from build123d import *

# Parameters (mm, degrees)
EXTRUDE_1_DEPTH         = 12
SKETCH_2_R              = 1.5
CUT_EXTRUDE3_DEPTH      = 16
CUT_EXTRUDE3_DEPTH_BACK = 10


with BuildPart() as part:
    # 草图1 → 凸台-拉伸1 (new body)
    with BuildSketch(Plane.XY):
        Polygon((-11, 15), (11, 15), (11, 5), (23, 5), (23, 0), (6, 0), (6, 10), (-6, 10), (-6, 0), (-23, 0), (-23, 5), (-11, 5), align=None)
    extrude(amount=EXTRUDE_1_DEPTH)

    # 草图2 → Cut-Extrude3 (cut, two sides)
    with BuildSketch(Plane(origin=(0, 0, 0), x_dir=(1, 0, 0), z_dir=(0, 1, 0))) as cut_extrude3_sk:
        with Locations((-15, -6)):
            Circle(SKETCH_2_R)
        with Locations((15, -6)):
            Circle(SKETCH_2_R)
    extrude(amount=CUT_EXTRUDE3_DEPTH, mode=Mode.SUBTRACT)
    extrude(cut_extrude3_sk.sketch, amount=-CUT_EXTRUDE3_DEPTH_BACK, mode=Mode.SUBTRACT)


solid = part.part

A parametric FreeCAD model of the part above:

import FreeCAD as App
import Part
import Sketcher
Q = App.Units.Quantity

doc = App.newDocument("Part")
params = doc.addObject("Spreadsheet::Sheet", "Params")
for row, (alias, value) in enumerate([
    ("sketch1_width", "22 mm"),
    ("sketch1_width2", "12 mm"),
    ("sketch1_height", "10 mm"),
    ("sketch1_height2", "5 mm"),
    ("pad1_length", "12 mm"),
    ("sketch2_diameter", "3 mm"),
], start=1):
    params.set(f"A{row}", alias)
    params.set(f"B{row}", "=" + value)
    params.setAlias(f"B{row}", alias)

body = doc.addObject("PartDesign::Body", "Body")

sketch1 = doc.addObject("Sketcher::SketchObject", "Sketch")
body.addObject(sketch1)
sketch1.AttachmentSupport = (doc.XY_Plane, [""])
sketch1.MapMode = "FlatFace"
sketch1.addGeometry([
    Part.LineSegment(App.Vector(11, 15, 0), App.Vector(-11, 15, 0)),
    Part.LineSegment(App.Vector(-11, 15, 0), App.Vector(-11, 5, 0)),
    Part.LineSegment(App.Vector(-11, 5, 0), App.Vector(-23, 5, 0)),
    Part.LineSegment(App.Vector(-23, 5, 0), App.Vector(-23, 0, 0)),
    Part.LineSegment(App.Vector(-23, 0, 0), App.Vector(-6, 0, 0)),
    Part.LineSegment(App.Vector(-6, 0, 0), App.Vector(-6, 10, 0)),
    Part.LineSegment(App.Vector(-6, 10, 0), App.Vector(6, 10, 0)),
    Part.LineSegment(App.Vector(6, 10, 0), App.Vector(6, 0, 0)),
    Part.LineSegment(App.Vector(6, 0, 0), App.Vector(23, 0, 0)),
    Part.LineSegment(App.Vector(23, 0, 0), App.Vector(23, 5, 0)),
    Part.LineSegment(App.Vector(23, 5, 0), App.Vector(11, 5, 0)),
    Part.LineSegment(App.Vector(11, 5, 0), App.Vector(11, 15, 0)),
], False)
sketch1.addConstraint([
    Sketcher.Constraint("Coincident", 0, 2, 1, 1),
    Sketcher.Constraint("Coincident", 1, 2, 2, 1),
    Sketcher.Constraint("Coincident", 2, 2, 3, 1),
    Sketcher.Constraint("Coincident", 3, 2, 4, 1),
    Sketcher.Constraint("Coincident", 4, 2, 5, 1),
    Sketcher.Constraint("Coincident", 5, 2, 6, 1),
    Sketcher.Constraint("Coincident", 6, 2, 7, 1),
    Sketcher.Constraint("Coincident", 7, 2, 8, 1),
    Sketcher.Constraint("Coincident", 8, 2, 9, 1),
    Sketcher.Constraint("Coincident", 9, 2, 10, 1),
    Sketcher.Constraint("Coincident", 10, 2, 11, 1),
    Sketcher.Constraint("Coincident", 11, 2, 0, 1),
    Sketcher.Constraint("Horizontal", 0),
    Sketcher.Constraint("Vertical", 1),
    Sketcher.Constraint("Horizontal", 2),
    Sketcher.Constraint("Vertical", 3),
    Sketcher.Constraint("Horizontal", 4),
    Sketcher.Constraint("Vertical", 5),
    Sketcher.Constraint("Horizontal", 6),
    Sketcher.Constraint("Vertical", 7),
    Sketcher.Constraint("Horizontal", 8),
    Sketcher.Constraint("Vertical", 9),
    Sketcher.Constraint("Horizontal", 10),
    Sketcher.Constraint("Vertical", 11),
    Sketcher.Constraint("Symmetric", 4, 2, 7, 2, -1, 1),
    Sketcher.Constraint("Symmetric", 3, 2, 8, 2, -2),
    Sketcher.Constraint("Symmetric", 1, 2, 10, 2, -2),
    Sketcher.Constraint("Equal", 2, 6),
    Sketcher.Constraint("Equal", 1, 5),
    Sketcher.Constraint("DistanceX", 0, 2, 0, 1, Q("22 mm")),
    Sketcher.Constraint("DistanceX", 2, 2, 2, 1, Q("12 mm")),
    Sketcher.Constraint("DistanceY", 1, 2, 1, 1, Q("10 mm")),
    Sketcher.Constraint("DistanceY", 3, 2, 3, 1, Q("5 mm")),
])
sketch1.setExpression("Constraints[29]", "Params.sketch1_width")
sketch1.setExpression("Constraints[30]", "Params.sketch1_width2")
sketch1.setExpression("Constraints[31]", "Params.sketch1_height")
sketch1.setExpression("Constraints[32]", "Params.sketch1_height2")
pad1 = doc.addObject("PartDesign::Pad", "Pad")
body.addObject(pad1)
pad1.Profile = sketch1
pad1.setExpression("Length", "Params.pad1_length")

sketch2 = doc.addObject("Sketcher::SketchObject", "Sketch001")
body.addObject(sketch2)
sketch2.AttachmentSupport = (doc.XZ_Plane, [""])
sketch2.MapMode = "FlatFace"
sketch2.addGeometry([
    Part.Circle(App.Vector(-15, 6, 0), App.Vector(0, 0, 1), 1.5),
    Part.Circle(App.Vector(15, 6, 0), App.Vector(0, 0, 1), 1.5),
], False)
sketch2.addConstraint([
    Sketcher.Constraint("Equal", 0, 1),
    Sketcher.Constraint("Symmetric", 0, 3, 1, 3, -2),
    Sketcher.Constraint("Diameter", 0, Q("3 mm")),
    Sketcher.Constraint("DistanceX", 0, 3, -1, 1, Q("15 mm")),
    Sketcher.Constraint("DistanceY", -1, 1, 0, 3, Q("6 mm")),
])
sketch2.setExpression("Constraints[2]", "Params.sketch2_diameter")
pocket1 = doc.addObject("PartDesign::Pocket", "Pocket")
body.addObject(pocket1)
pocket1.Profile = sketch2
pocket1.Type = "ThroughAll"
pocket1.Midplane = True

doc.recompute()
